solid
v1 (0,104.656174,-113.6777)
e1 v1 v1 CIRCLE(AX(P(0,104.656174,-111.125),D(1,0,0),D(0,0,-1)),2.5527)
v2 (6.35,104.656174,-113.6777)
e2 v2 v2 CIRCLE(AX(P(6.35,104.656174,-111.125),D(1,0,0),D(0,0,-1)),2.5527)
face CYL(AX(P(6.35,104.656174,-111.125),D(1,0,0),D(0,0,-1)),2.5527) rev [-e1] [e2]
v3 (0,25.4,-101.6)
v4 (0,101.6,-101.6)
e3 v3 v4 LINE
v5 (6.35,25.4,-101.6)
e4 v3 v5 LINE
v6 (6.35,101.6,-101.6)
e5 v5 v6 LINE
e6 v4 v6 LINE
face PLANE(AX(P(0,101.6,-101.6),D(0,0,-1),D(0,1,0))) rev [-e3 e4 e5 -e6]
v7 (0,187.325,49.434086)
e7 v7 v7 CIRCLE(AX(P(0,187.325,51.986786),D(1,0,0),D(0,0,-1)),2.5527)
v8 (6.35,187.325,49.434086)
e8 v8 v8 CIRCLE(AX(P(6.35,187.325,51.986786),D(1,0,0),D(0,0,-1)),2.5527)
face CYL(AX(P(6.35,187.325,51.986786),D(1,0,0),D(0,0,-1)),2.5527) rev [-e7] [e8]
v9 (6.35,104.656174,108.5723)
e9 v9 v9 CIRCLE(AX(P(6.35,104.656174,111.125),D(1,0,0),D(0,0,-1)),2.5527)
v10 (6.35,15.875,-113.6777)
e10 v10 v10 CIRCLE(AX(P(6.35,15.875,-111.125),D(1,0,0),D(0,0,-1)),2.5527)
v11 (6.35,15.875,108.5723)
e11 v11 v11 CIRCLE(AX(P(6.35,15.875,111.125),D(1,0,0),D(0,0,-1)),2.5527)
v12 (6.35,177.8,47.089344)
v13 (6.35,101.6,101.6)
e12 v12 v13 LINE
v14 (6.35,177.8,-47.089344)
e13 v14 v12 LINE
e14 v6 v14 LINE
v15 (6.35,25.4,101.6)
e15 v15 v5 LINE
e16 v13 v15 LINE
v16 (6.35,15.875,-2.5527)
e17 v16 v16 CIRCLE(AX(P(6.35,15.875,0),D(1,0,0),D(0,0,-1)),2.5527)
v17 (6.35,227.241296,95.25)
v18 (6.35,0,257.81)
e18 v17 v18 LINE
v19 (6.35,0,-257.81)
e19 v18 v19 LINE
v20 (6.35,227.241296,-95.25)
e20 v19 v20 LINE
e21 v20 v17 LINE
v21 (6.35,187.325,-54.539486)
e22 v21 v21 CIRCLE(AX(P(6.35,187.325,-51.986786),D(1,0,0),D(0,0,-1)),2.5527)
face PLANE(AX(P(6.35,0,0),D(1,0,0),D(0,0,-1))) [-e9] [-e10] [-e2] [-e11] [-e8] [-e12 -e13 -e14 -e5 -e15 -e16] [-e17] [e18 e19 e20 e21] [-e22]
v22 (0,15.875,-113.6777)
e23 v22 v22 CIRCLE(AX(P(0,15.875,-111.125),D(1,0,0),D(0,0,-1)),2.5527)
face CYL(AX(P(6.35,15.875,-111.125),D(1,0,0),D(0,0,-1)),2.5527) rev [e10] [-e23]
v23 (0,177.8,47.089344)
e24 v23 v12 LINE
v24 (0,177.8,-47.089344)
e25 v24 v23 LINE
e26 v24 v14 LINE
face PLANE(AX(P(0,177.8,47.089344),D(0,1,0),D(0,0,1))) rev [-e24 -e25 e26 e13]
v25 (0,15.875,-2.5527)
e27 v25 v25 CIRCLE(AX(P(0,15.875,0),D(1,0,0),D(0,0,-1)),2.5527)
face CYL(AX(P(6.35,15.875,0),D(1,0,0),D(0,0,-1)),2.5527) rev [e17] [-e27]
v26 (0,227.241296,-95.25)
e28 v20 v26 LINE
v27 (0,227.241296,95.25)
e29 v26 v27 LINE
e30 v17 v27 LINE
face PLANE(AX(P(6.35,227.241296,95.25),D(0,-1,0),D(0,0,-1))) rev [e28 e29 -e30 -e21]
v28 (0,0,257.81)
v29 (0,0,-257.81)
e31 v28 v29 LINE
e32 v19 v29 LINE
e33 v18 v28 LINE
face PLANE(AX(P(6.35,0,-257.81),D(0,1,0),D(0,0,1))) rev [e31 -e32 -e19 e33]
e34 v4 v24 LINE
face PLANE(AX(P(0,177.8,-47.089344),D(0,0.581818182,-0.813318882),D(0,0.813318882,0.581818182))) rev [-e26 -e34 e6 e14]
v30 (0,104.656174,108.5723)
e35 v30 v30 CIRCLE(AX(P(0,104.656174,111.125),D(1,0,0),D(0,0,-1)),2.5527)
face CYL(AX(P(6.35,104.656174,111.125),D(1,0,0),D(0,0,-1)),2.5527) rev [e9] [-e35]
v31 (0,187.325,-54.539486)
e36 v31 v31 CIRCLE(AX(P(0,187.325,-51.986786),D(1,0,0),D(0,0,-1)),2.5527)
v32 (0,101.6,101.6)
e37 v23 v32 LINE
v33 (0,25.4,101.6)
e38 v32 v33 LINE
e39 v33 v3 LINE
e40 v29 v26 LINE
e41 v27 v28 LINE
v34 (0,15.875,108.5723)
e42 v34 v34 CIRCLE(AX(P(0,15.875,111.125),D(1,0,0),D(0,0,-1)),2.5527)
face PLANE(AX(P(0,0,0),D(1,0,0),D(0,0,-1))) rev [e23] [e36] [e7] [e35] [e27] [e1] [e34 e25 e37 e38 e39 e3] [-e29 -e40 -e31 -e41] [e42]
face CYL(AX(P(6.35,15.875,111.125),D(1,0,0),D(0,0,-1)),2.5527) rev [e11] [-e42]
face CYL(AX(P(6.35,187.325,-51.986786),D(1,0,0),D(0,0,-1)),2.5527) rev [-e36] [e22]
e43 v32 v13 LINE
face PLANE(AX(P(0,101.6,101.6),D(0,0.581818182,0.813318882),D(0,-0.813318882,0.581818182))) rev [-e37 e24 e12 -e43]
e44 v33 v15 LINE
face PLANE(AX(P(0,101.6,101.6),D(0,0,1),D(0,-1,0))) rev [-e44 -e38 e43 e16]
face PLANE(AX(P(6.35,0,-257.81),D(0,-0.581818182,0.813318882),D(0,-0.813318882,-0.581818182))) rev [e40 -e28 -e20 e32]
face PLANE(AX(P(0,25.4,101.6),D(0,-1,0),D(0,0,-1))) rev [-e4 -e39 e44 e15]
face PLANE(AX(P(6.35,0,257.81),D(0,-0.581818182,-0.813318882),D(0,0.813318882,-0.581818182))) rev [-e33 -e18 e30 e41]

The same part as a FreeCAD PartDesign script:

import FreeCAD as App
import Part
import Sketcher

V = App.Vector
Q = App.Units.Quantity


def add_polygon(sketch, points):
    """Adds a closed chain of lines whose ends are joined by coincident constraints."""
    first, n = sketch.GeometryCount, len(points)
    for a, b in zip(points, points[1:] + points[:1]):
        sketch.addGeometry(Part.LineSegment(App.Vector(*a, 0), App.Vector(*b, 0)), False)
    for i in range(n):
        sketch.addConstraint(Sketcher.Constraint("Coincident", first + i, 2, first + (i + 1) % n, 1))

doc = App.newDocument("Part")
body = doc.addObject("PartDesign::Body", "Body")

sketch1 = body.newObject("Sketcher::SketchObject", "Sketch")
sketch1.AttachmentSupport = (doc.getObject("YZ_Plane"), [""])
sketch1.MapMode = "FlatFace"
add_polygon(sketch1, [(0, 258), (0, -258), (227, -95), (227, 95)])
sketch1.addConstraint([
    Sketcher.Constraint("Vertical", 0),
    Sketcher.Constraint("Vertical", 2),
    Sketcher.Constraint("Symmetric", 0, 2, 3, 2, -1, 1),
    Sketcher.Constraint("Equal", 1, 3),
    Sketcher.Constraint("Distance", 1, Q("11 in")),
    Sketcher.Constraint("DistanceY", 0, 2, 0, 1, Q("20.3 in")),
    Sketcher.Constraint("DistanceY", 2, 1, 2, 2, Q("7.5 in")),
])
pad1 = body.newObject("PartDesign::Pad", "Pad")
pad1.Profile = sketch1
pad1.Length = Q("0.25 in")

sketch2 = body.newObject("Sketcher::SketchObject", "Sketch001")
sketch2.AttachmentSupport = (doc.getObject("YZ_Plane"), [""])
sketch2.MapMode = "FlatFace"
sketch2.AttachmentOffset = App.Placement(V(0, 0, 0.25 * 25.4), App.Rotation())
add_polygon(sketch2, [(178, -47), (178, 47), (102, 102), (25, 102), (25, -102), (102, -102)])
sketch2.addConstraint([
    Sketcher.Constraint("Vertical", 0),
    Sketcher.Constraint("Horizontal", 2),
    Sketcher.Constraint("Vertical", 3),
    Sketcher.Constraint("Horizontal", 4),
    Sketcher.Constraint("Symmetric", 1, 2, 4, 2, -1),
    Sketcher.Constraint("Equal", 1, 5),
    Sketcher.Constraint("DistanceX", 2, 2, 2, 1, Q("3 in")),
    Sketcher.Constraint("DistanceY", 3, 2, 3, 1, Q("8 in")),
    Sketcher.Constraint("DistanceX", -1, 1, 0, 2, Q("7 in")),
    Sketcher.Constraint("DistanceX", -1, 1, 1, 2, Q("4 in")),
    Sketcher.Constraint("DistanceY", 0, 1, 0, 2, Q("94.178689 mm")),
])
pocket1 = body.newObject("PartDesign::Pocket", "Pocket")
pocket1.Profile = sketch2
pocket1.Type = "ThroughAll"

sketch3 = body.newObject("Sketcher::SketchObject", "Sketch002")
sketch3.AttachmentSupport = (doc.getObject("YZ_Plane"), [""])
sketch3.MapMode = "FlatFace"
sketch3.AttachmentOffset = App.Placement(V(0, 0, 0.25 * 25.4), App.Rotation())
sketch3.addGeometry([
    Part.Circle(V(187.3, -52, 0), V(0, 0, 1), 2.6),
    Part.Circle(V(187.3, 52, 0), V(0, 0, 1), 2.6),
    Part.Circle(V(104.7, -111.1, 0), V(0, 0, 1), 2.6),
    Part.Circle(V(15.9, -111.1, 0), V(0, 0, 1), 2.6),
    Part.Circle(V(15.9, 111.1, 0), V(0, 0, 1), 2.6),
    Part.Circle(V(104.7, 111.1, 0), V(0, 0, 1), 2.6),
    Part.Circle(V(15.9, 0, 0), V(0, 0, 1), 2.6),
], False)
sketch3.addConstraint([
    Sketcher.Constraint("Equal", 0, 1),
    Sketcher.Constraint("Equal", 1, 2),
    Sketcher.Constraint("Equal", 2, 3),
    Sketcher.Constraint("Equal", 3, 4),
    Sketcher.Constraint("Equal", 4, 5),
    Sketcher.Constraint("Equal", 5, 6),
    Sketcher.Constraint("Symmetric", 0, 3, 1, 3, -1),
    Sketcher.Constraint("Symmetric", 3, 3, 4, 3, -1),
    Sketcher.Constraint("Symmetric", 2, 3, 5, 3, -1),
    Sketcher.Constraint("PointOnObject", 6, 3, -1),
    Sketcher.Constraint("Horizontal", 2, 3, 3, 3),
    Sketcher.Constraint("Vertical", 4, 3, 6, 3),
    Sketcher.Constraint("Diameter", 0, Q("0.201 in")),
    Sketcher.Constraint("DistanceX", 3, 3, 0, 3, Q("6.75 in")),
    Sketcher.Constraint("DistanceY", 3, 3, 4, 3, Q("8.75 in")),
    Sketcher.Constraint("DistanceX", -1, 1, 0, 3, Q("7.375 in")),
    Sketcher.Constraint("DistanceY", 0, 3, -1, 1, Q("51.986786 mm")),
    Sketcher.Constraint("DistanceX", -1, 1, 2, 3, Q("104.656174 mm")),
])
doc.recompute()
hole = body.newObject("PartDesign::Hole", "Hole")
hole.Profile = sketch3
hole.ThreadType = "None"
hole.Diameter = Q("0.201 in")
hole.DepthType = "ThroughAll"

doc.recompute()
